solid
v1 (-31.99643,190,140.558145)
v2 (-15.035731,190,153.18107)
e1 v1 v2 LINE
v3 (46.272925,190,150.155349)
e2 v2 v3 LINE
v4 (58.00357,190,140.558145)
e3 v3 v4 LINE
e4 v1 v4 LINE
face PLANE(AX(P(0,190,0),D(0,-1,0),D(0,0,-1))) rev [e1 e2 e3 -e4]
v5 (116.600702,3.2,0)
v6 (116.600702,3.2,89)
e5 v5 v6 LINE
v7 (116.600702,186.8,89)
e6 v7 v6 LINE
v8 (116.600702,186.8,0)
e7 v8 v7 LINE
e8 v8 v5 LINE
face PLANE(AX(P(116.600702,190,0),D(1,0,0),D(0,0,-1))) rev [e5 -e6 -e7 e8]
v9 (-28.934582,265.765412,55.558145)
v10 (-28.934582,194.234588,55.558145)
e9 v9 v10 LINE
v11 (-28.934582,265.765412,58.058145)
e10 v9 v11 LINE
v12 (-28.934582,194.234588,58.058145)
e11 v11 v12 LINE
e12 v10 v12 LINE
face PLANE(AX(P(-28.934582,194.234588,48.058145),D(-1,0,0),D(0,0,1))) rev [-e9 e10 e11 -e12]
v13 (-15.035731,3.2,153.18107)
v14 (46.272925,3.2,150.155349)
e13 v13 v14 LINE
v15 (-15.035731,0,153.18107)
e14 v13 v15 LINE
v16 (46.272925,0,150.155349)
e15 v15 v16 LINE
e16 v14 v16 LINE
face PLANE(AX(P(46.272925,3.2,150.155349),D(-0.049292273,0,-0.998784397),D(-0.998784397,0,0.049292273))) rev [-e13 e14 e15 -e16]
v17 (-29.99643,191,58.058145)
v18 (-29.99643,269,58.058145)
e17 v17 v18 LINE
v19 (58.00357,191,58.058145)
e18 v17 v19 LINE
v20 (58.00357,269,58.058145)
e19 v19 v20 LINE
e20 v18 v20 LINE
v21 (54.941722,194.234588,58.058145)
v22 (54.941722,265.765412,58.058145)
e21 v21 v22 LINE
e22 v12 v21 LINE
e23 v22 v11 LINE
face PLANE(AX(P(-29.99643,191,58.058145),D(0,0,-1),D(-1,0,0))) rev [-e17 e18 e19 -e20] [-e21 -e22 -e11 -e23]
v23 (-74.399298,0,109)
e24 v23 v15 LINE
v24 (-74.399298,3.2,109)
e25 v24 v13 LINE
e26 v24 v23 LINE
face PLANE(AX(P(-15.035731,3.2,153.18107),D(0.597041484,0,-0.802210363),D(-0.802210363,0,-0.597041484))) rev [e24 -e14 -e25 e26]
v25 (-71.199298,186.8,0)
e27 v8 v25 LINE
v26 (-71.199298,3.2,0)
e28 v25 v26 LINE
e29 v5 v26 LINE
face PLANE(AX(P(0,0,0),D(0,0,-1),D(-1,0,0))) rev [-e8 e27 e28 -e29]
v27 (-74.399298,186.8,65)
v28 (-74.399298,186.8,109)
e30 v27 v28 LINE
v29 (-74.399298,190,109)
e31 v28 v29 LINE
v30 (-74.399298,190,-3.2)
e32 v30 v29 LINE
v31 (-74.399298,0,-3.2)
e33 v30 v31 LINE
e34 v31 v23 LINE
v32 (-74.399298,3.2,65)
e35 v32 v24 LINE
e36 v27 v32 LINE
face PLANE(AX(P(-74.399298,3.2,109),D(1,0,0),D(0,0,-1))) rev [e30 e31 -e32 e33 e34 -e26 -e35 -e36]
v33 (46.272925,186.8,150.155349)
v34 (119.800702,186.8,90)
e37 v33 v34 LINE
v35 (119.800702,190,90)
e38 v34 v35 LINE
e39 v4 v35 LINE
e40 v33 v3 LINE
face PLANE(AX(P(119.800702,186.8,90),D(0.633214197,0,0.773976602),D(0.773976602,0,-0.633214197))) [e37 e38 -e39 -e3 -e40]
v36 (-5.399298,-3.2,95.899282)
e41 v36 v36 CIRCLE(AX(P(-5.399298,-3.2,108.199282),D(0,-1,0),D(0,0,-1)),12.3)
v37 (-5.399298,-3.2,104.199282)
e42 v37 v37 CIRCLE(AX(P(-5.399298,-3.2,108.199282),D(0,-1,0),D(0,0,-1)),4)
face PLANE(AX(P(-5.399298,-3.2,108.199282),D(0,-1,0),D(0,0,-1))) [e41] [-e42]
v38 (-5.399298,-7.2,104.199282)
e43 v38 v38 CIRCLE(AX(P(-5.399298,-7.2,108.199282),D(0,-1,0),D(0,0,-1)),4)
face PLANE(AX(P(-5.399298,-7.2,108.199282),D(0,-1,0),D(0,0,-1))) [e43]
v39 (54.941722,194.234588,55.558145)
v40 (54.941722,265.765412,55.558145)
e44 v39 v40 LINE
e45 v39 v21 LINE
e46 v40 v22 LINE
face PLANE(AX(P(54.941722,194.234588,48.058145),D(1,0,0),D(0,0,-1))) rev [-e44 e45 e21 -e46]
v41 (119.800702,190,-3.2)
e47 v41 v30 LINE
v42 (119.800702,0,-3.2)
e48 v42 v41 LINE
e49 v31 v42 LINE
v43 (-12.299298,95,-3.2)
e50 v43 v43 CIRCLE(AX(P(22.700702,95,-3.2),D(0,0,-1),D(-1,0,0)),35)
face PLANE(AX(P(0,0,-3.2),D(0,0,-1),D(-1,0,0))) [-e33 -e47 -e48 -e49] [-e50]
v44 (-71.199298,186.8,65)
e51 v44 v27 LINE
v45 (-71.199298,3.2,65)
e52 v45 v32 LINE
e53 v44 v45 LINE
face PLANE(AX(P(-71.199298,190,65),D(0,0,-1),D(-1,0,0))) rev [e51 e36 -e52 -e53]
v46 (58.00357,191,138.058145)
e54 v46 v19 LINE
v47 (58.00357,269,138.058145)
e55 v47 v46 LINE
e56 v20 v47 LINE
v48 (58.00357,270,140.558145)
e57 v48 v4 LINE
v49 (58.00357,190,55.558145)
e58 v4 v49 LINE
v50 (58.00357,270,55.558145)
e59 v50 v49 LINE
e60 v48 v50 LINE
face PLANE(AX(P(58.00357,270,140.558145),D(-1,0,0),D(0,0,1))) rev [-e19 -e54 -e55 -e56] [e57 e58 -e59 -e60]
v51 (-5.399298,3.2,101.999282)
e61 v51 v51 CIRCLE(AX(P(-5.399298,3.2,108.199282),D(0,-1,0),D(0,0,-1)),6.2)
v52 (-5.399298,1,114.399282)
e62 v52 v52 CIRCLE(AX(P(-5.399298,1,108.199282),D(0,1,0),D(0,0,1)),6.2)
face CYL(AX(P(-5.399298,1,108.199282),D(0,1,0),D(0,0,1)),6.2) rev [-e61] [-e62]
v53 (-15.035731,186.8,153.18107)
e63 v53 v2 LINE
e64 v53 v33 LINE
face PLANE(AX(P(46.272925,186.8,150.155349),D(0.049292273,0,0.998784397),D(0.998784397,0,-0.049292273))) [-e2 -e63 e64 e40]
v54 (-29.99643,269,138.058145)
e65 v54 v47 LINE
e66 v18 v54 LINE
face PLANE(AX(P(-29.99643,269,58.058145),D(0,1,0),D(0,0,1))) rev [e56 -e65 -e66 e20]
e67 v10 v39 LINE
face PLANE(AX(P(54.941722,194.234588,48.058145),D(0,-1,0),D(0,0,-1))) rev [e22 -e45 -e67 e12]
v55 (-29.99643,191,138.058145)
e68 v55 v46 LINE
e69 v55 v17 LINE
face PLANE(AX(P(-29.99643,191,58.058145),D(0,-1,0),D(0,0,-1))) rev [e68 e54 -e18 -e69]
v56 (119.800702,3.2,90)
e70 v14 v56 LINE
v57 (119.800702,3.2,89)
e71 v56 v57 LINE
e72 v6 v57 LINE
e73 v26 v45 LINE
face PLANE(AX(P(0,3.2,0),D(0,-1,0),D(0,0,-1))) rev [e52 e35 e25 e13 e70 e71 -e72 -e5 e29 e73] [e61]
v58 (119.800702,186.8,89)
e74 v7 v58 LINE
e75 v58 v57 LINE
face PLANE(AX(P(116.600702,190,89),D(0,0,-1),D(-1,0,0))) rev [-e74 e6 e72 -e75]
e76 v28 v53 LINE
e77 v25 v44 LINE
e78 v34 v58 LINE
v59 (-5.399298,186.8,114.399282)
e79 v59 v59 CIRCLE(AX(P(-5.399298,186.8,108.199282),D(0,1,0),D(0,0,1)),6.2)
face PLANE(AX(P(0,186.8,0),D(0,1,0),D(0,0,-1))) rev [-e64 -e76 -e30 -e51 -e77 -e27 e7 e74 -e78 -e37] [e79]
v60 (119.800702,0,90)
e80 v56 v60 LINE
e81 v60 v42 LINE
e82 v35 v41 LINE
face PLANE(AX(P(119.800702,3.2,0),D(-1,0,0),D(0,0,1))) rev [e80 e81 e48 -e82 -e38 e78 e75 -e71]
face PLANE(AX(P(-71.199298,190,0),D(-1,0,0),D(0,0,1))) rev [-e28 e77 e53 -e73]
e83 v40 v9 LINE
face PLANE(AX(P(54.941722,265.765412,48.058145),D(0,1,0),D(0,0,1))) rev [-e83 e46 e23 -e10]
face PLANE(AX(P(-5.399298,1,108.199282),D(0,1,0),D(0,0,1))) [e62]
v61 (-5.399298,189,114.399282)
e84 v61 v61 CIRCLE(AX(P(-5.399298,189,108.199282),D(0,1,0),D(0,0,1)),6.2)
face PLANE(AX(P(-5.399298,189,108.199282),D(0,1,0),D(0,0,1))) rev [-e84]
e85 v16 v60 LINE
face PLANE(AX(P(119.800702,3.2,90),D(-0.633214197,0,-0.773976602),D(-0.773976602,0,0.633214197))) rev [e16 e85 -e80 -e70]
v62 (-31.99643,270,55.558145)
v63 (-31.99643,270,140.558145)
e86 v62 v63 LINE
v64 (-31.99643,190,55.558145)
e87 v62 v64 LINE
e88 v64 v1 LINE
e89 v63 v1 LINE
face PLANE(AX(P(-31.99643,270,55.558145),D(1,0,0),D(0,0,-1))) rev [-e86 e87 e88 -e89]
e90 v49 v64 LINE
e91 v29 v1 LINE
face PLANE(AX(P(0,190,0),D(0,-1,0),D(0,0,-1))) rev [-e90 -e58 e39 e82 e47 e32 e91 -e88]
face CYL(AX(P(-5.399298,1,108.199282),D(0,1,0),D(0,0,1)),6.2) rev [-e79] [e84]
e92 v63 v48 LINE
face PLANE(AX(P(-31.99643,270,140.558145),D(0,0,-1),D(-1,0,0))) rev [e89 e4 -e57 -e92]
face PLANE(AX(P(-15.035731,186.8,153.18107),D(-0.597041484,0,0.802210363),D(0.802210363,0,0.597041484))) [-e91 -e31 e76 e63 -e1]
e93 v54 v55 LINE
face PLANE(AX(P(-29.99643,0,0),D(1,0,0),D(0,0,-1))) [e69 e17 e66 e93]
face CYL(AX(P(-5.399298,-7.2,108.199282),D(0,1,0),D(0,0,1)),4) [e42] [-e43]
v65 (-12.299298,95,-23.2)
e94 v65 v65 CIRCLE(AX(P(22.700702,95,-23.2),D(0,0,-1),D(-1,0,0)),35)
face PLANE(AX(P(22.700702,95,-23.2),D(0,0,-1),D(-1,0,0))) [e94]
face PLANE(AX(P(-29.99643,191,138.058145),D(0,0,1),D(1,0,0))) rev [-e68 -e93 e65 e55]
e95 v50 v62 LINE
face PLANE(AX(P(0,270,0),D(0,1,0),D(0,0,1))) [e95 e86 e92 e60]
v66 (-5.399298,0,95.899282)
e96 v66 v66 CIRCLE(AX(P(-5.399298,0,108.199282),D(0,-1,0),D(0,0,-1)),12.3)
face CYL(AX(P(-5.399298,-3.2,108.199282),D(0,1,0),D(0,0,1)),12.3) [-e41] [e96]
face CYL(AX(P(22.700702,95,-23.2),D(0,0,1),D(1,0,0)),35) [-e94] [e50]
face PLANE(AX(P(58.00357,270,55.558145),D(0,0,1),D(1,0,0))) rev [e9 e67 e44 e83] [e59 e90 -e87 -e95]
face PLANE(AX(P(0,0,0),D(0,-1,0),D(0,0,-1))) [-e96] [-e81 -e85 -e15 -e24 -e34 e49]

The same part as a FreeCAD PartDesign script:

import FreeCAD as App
import Part
import Sketcher
from FreeCAD import Vector
Q = App.Units.Quantity

doc = App.newDocument("Part")
body = doc.addObject("PartDesign::Body", "Body")

sketch1 = body.newObject("Sketcher::SketchObject", "Sketch")
sketch1.AttachmentSupport = (doc.getObject("XZ_Plane"), [""])
sketch1.MapMode = "FlatFace"
sketch1.addGeometry([
    Part.LineSegment(Vector(119.8, 0, 0), Vector(-71.2, 0, 0)),
    Part.LineSegment(Vector(-71.2, 0, 0), Vector(-71.2, 65, 0)),
    Part.LineSegment(Vector(-71.2, 65, 0), Vector(-74.4, 65, 0)),
    Part.LineSegment(Vector(-74.4, 65, 0), Vector(-74.4, 109, 0)),
    Part.LineSegment(Vector(-74.4, 109, 0), Vector(-15, 153.2, 0)),
    Part.LineSegment(Vector(-15, 153.2, 0), Vector(46.3, 150.2, 0)),
    Part.LineSegment(Vector(46.3, 150.2, 0), Vector(119.8, 90, 0)),
    Part.LineSegment(Vector(119.8, 90, 0), Vector(119.8, 0, 0)),
], False)
sketch1.addConstraint([
    Sketcher.Constraint("Coincident", 0, 2, 1, 1),
    Sketcher.Constraint("Coincident", 1, 2, 2, 1),
    Sketcher.Constraint("Coincident", 2, 2, 3, 1),
    Sketcher.Constraint("Coincident", 3, 2, 4, 1),
    Sketcher.Constraint("Coincident", 4, 2, 5, 1),
    Sketcher.Constraint("Coincident", 5, 2, 6, 1),
    Sketcher.Constraint("Coincident", 6, 2, 7, 1),
    Sketcher.Constraint("Coincident", 7, 2, 0, 1),
    Sketcher.Constraint("Horizontal", 0),
    Sketcher.Constraint("Vertical", 1),
    Sketcher.Constraint("Horizontal", 2),
    Sketcher.Constraint("Vertical", 3),
    Sketcher.Constraint("Vertical", 7),
    Sketcher.Constraint("PointOnObject", 0, 2, -1),
    Sketcher.Constraint("DistanceX", 0, 2, 0, 1, Q("191 mm")),
    Sketcher.Constraint("DistanceY", 1, 1, 1, 2, Q("65 mm")),
    Sketcher.Constraint("DistanceY", 3, 1, 3, 2, Q("44 mm")),
    Sketcher.Constraint("DistanceY", 7, 2, 7, 1, Q("90 mm")),
    Sketcher.Constraint("Distance", 4, Q("74 mm")),
    Sketcher.Constraint("Distance", 6, Q("95 mm")),
    Sketcher.Constraint("DistanceX", 2, 2, 2, 1, Q("3.2 mm")),
    Sketcher.Constraint("DistanceX", 4, 2, -1, 1, Q("15.035731 mm")),
    Sketcher.Constraint("DistanceY", -1, 1, 4, 2, Q("153.18107 mm")),
    Sketcher.Constraint("DistanceY", -1, 1, 5, 2, Q("150.155349 mm")),
])
pad1 = body.newObject("PartDesign::Pad", "Pad")
pad1.Profile = sketch1
pad1.Length = 3.2
pad1.Reversed = True

sketch2 = body.newObject("Sketcher::SketchObject", "Sketch001")
sketch2.AttachmentSupport = (doc.getObject("XZ_Plane"), [""])
sketch2.MapMode = "FlatFace"
sketch2.addGeometry(Part.Circle(Vector(-5, 108, 0), Vector(0, 0, 1), 12), False)
sketch2.addConstraint([
    Sketcher.Constraint("Diameter", 0, Q("24.6 mm")),
    Sketcher.Constraint("DistanceY", -1, 1, 0, 3, Q("108.199282 mm")),
    Sketcher.Constraint("DistanceX", 0, 3, -1, 1, Q("5.399298 mm")),
])
pad2 = body.newObject("PartDesign::Pad", "Pad001")
pad2.Profile = sketch2
pad2.Length = 3.2

sketch3 = body.newObject("Sketcher::SketchObject", "Sketch002")
sketch3.AttachmentSupport = (doc.getObject("XZ_Plane"), [""])
sketch3.MapMode = "FlatFace"
sketch3.AttachmentOffset = App.Placement(Vector(0, 0, 3.2), App.Rotation())
sketch3.addGeometry(Part.Circle(Vector(-5.4, 108.2, 0), Vector(0, 0, 1), 4), False)
sketch3.addConstraint([
    Sketcher.Constraint("Diameter", 0, Q("8 mm")),
    Sketcher.Constraint("DistanceY", -1, 1, 0, 3, Q("108.199282 mm")),
    Sketcher.Constraint("DistanceX", 0, 3, -1, 1, Q("5.399298 mm")),
])
pad3 = body.newObject("PartDesign::Pad", "Pad002")
pad3.Profile = sketch3
pad3.Length = 4

sketch4 = body.newObject("Sketcher::SketchObject", "Sketch003")
sketch4.AttachmentSupport = (doc.getObject("XZ_Plane"), [""])
sketch4.MapMode = "FlatFace"
sketch4.addGeometry([
    Part.LineSegment(Vector(-74.4, 0, 0), Vector(-74.4, 65, 0)),
    Part.LineSegment(Vector(-74.4, 65, 0), Vector(-71.2, 65, 0)),
    Part.LineSegment(Vector(-71.2, 65, 0), Vector(-71.2, 0, 0)),
    Part.LineSegment(Vector(-71.2, 0, 0), Vector(-74.4, 0, 0)),
], False)
sketch4.addConstraint([
    Sketcher.Constraint("Coincident", 0, 2, 1, 1),
    Sketcher.Constraint("Coincident", 1, 2, 2, 1),
    Sketcher.Constraint("Coincident", 2, 2, 3, 1),
    Sketcher.Constraint("Coincident", 3, 2, 0, 1),
    Sketcher.Constraint("Vertical", 0),
    Sketcher.Constraint("Horizontal", 1),
    Sketcher.Constraint("Vertical", 2),
    Sketcher.Constraint("Horizontal", 3),
    Sketcher.Constraint("PointOnObject", 2, 2, -1),
    Sketcher.Constraint("DistanceY", 0, 1, 0, 2, Q("65 mm")),
    Sketcher.Constraint("DistanceX", 1, 1, 1, 2, Q("3.2 mm")),
    Sketcher.Constraint("DistanceX", 0, 2, -1, 1, Q("74.399298 mm")),
])
pad4 = body.newObject("PartDesign::Pad", "Pad003")
pad4.Profile = sketch4
pad4.Length = 190
pad4.Reversed = True

sketch5 = body.newObject("Sketcher::SketchObject", "Sketch004")
sketch5.AttachmentSupport = (doc.getObject("XZ_Plane"), [""])
sketch5.MapMode = "FlatFace"
sketch5.addGeometry([
    Part.LineSegment(Vector(116.6, 0, 0), Vector(116.6, 89, 0)),
    Part.LineSegment(Vector(116.6, 89, 0), Vector(119.8, 89, 0)),
    Part.LineSegment(Vector(119.8, 89, 0), Vector(119.8, 0, 0)),
    Part.LineSegment(Vector(119.8, 0, 0), Vector(116.6, 0, 0)),
], False)
sketch5.addConstraint([
    Sketcher.Constraint("Coincident", 0, 2, 1, 1),
    Sketcher.Constraint("Coincident", 1, 2, 2, 1),
    Sketcher.Constraint("Coincident", 2, 2, 3, 1),
    Sketcher.Constraint("Coincident", 3, 2, 0, 1),
    Sketcher.Constraint("Vertical", 0),
    Sketcher.Constraint("Horizontal", 1),
    Sketcher.Constraint("Vertical", 2),
    Sketcher.Constraint("Horizontal", 3),
    Sketcher.Constraint("PointOnObject", 2, 2, -1),
    Sketcher.Constraint("DistanceY", 0, 1, 0, 2, Q("89 mm")),
    Sketcher.Constraint("DistanceX", 1, 1, 1, 2, Q("3.2 mm")),
    Sketcher.Constraint("DistanceX", -1, 1, 0, 2, Q("116.600702 mm")),
])
pad5 = body.newObject("PartDesign::Pad", "Pad004")
pad5.Profile = sketch5
pad5.Length = 190
pad5.Reversed = True
doc.recompute()

datumplane = body.newObject("PartDesign::Plane", "DatumPlane")
datumplane.AttachmentSupport = (doc.getObject("XZ_Plane"), [""])
datumplane.MapMode = "FlatFace"
datumplane.AttachmentOffset = App.Placement(Vector(0, 0, -95), App.Rotation())
mirrored = body.newObject("PartDesign::Mirrored", "Mirrored")
mirrored.Originals = [pad1, pad2, pad3]
mirrored.MirrorPlane = (datumplane, [""])
body.Tip = mirrored

sketch6 = body.newObject("Sketcher::SketchObject", "Sketch005")
sketch6.AttachmentSupport = (doc.getObject("XY_Plane"), [""])
sketch6.MapMode = "FlatFace"
sketch6.addGeometry([
    Part.LineSegment(Vector(-74, 190, 0), Vector(-74, 0, 0)),
    Part.LineSegment(Vector(-74, 0, 0), Vector(120, 0, 0)),
    Part.LineSegment(Vector(120, 0, 0), Vector(120, 190, 0)),
    Part.LineSegment(Vector(120, 190, 0), Vector(-74, 190, 0)),
], False)
sketch6.addConstraint([
    Sketcher.Constraint("Coincident", 0, 2, 1, 1),
    Sketcher.Constraint("Coincident", 1, 2, 2, 1),
    Sketcher.Constraint("Coincident", 2, 2, 3, 1),
    Sketcher.Constraint("Coincident", 3, 2, 0, 1),
    Sketcher.Constraint("Vertical", 0),
    Sketcher.Constraint("Horizontal", 1),
    Sketcher.Constraint("Vertical", 2),
    Sketcher.Constraint("Horizontal", 3),
    Sketcher.Constraint("PointOnObject", 0, 2, -1),
    Sketcher.Constraint("DistanceY", 0, 2, 0, 1, Q("190 mm")),
    Sketcher.Constraint("DistanceX", 1, 1, 1, 2, Q("194.2 mm")),
    Sketcher.Constraint("DistanceX", 0, 2, -1, 1, Q("74.399298 mm")),
])
pad6 = body.newObject("PartDesign::Pad", "Pad005")
pad6.Profile = sketch6
pad6.Length = 3.2
pad6.Reversed = True

sketch7 = body.newObject("Sketcher::SketchObject", "Sketch006")
sketch7.AttachmentSupport = (doc.getObject("XZ_Plane"), [""])
sketch7.MapMode = "FlatFace"
sketch7.AttachmentOffset = App.Placement(Vector(0, 0, -95), App.Rotation())
sketch7.addGeometry(Part.Circle(Vector(-5, 108, 0), Vector(0, 0, 1), 6), False)
sketch7.addConstraint([
    Sketcher.Constraint("Diameter", 0, Q("12.4 mm")),
    Sketcher.Constraint("DistanceY", -1, 1, 0, 3, Q("108.199282 mm")),
    Sketcher.Constraint("DistanceX", 0, 3, -1, 1, Q("5.399298 mm")),
])
pocket1 = body.newObject("PartDesign::Pocket", "Pocket")
pocket1.Profile = sketch7
pocket1.Length = 188
pocket1.Midplane = True

sketch8 = body.newObject("Sketcher::SketchObject", "Sketch007")
sketch8.AttachmentSupport = (doc.getObject("XY_Plane"), [""])
sketch8.MapMode = "FlatFace"
sketch8.AttachmentOffset = App.Placement(Vector(0, 0, -3.2), App.Rotation())
sketch8.addGeometry(Part.Circle(Vector(23, 95, 0), Vector(0, 0, 1), 35), False)
sketch8.addConstraint([
    Sketcher.Constraint("Diameter", 0, Q("70 mm")),
    Sketcher.Constraint("DistanceY", -1, 1, 0, 3, Q("95 mm")),
    Sketcher.Constraint("DistanceX", -1, 1, 0, 3, Q("22.700702 mm")),
])
pad7 = body.newObject("PartDesign::Pad", "Pad006")
pad7.Profile = sketch8
pad7.Length = 20
pad7.Reversed = True

sketch9 = body.newObject("Sketcher::SketchObject", "Sketch008")
sketch9.AttachmentSupport = (doc.getObject("XZ_Plane"), [""])
sketch9.MapMode = "FlatFace"
sketch9.AttachmentOffset = App.Placement(Vector(0, 0, -190), App.Rotation())
sketch9.addGeometry([
    Part.LineSegment(Vector(-32, 56, 0), Vector(-32, 141, 0)),
    Part.LineSegment(Vector(-32, 141, 0), Vector(58, 141, 0)),
    Part.LineSegment(Vector(58, 141, 0), Vector(58, 56, 0)),
    Part.LineSegment(Vector(58, 56, 0), Vector(-32, 56, 0)),
], False)
sketch9.addConstraint([
    Sketcher.Constraint("Coincident", 0, 2, 1, 1),
    Sketcher.Constraint("Coincident", 1, 2, 2, 1),
    Sketcher.Constraint("Coincident", 2, 2, 3, 1),
    Sketcher.Constraint("Coincident", 3, 2, 0, 1),
    Sketcher.Constraint("Vertical", 0),
    Sketcher.Constraint("Horizontal", 1),
    Sketcher.Constraint("Vertical", 2),
    Sketcher.Constraint("Horizontal", 3),
    Sketcher.Constraint("DistanceX", 1, 1, 1, 2, Q("90 mm")),
    Sketcher.Constraint("DistanceY", 0, 1, 0, 2, Q("85 mm")),
    Sketcher.Constraint("DistanceX", 0, 2, -1, 1, Q("31.99643 mm")),
    Sketcher.Constraint("DistanceY", -1, 1, 0, 2, Q("140.558145 mm")),
])
pad8 = body.newObject("PartDesign::Pad", "Pad007")
pad8.Profile = sketch9
pad8.Length = 80
pad8.Reversed = True

sketch10 = body.newObject("Sketcher::SketchObject", "Sketch009")
sketch10.AttachmentSupport = (doc.getObject("YZ_Plane"), [""])
sketch10.MapMode = "FlatFace"
sketch10.AttachmentOffset = App.Placement(Vector(0, 0, 58.00357), App.Rotation())
sketch10.addGeometry([
    Part.LineSegment(Vector(269, 138, 0), Vector(191, 138, 0)),
    Part.LineSegment(Vector(191, 138, 0), Vector(191, 58, 0)),
    Part.LineSegment(Vector(191, 58, 0), Vector(269, 58, 0)),
    Part.LineSegment(Vector(269, 58, 0), Vector(269, 138, 0)),
], False)
sketch10.addConstraint([
    Sketcher.Constraint("Coincident", 0, 2, 1, 1),
    Sketcher.Constraint("Coincident", 1, 2, 2, 1),
    Sketcher.Constraint("Coincident", 2, 2, 3, 1),
    Sketcher.Constraint("Coincident", 3, 2, 0, 1),
    Sketcher.Constraint("Horizontal", 0),
    Sketcher.Constraint("Vertical", 1),
    Sketcher.Constraint("Horizontal", 2),
    Sketcher.Constraint("Vertical", 3),
    Sketcher.Constraint("DistanceX", 0, 2, 0, 1, Q("78 mm")),
    Sketcher.Constraint("DistanceY", 1, 2, 1, 1, Q("80 mm")),
    Sketcher.Constraint("DistanceX", -1, 1, 0, 2, Q("191 mm")),
    Sketcher.Constraint("DistanceY", -1, 1, 0, 2, Q("138.058145 mm")),
])
pocket2 = body.newObject("PartDesign::Pocket", "Pocket001")
pocket2.Profile = sketch10
pocket2.Length = 88

sketch11 = body.newObject("Sketcher::SketchObject", "Sketch010")
sketch11.AttachmentSupport = (doc.getObject("XY_Plane"), [""])
sketch11.MapMode = "FlatFace"
sketch11.AttachmentOffset = App.Placement(Vector(0, 0, 58.058145), App.Rotation())
sketch11.addGeometry([
    Part.LineSegment(Vector(-29, 266, 0), Vector(-29, 194, 0)),
    Part.LineSegment(Vector(-29, 194, 0), Vector(55, 194, 0)),
    Part.LineSegment(Vector(55, 194, 0), Vector(55, 266, 0)),
    Part.LineSegment(Vector(55, 266, 0), Vector(-29, 266, 0)),
], False)
sketch11.addConstraint([
    Sketcher.Constraint("Coincident", 0, 2, 1, 1),
    Sketcher.Constraint("Coincident", 1, 2, 2, 1),
    Sketcher.Constraint("Coincident", 2, 2, 3, 1),
    Sketcher.Constraint("Coincident", 3, 2, 0, 1),
    Sketcher.Constraint("Vertical", 0),
    Sketcher.Constraint("Horizontal", 1),
    Sketcher.Constraint("Vertical", 2),
    Sketcher.Constraint("Horizontal", 3),
    Sketcher.Constraint("DistanceX", 1, 1, 1, 2, Q("83.876304 mm")),
    Sketcher.Constraint("DistanceY", 0, 2, 0, 1, Q("71.530824 mm")),
    Sketcher.Constraint("DistanceX", -1, 1, 1, 2, Q("54.941722 mm")),
    Sketcher.Constraint("DistanceY", -1, 1, 0, 2, Q("194.234588 mm")),
])
pocket3 = body.newObject("PartDesign::Pocket", "Pocket002")
pocket3.Profile = sketch11
pocket3.Length = 10

doc.recompute()
